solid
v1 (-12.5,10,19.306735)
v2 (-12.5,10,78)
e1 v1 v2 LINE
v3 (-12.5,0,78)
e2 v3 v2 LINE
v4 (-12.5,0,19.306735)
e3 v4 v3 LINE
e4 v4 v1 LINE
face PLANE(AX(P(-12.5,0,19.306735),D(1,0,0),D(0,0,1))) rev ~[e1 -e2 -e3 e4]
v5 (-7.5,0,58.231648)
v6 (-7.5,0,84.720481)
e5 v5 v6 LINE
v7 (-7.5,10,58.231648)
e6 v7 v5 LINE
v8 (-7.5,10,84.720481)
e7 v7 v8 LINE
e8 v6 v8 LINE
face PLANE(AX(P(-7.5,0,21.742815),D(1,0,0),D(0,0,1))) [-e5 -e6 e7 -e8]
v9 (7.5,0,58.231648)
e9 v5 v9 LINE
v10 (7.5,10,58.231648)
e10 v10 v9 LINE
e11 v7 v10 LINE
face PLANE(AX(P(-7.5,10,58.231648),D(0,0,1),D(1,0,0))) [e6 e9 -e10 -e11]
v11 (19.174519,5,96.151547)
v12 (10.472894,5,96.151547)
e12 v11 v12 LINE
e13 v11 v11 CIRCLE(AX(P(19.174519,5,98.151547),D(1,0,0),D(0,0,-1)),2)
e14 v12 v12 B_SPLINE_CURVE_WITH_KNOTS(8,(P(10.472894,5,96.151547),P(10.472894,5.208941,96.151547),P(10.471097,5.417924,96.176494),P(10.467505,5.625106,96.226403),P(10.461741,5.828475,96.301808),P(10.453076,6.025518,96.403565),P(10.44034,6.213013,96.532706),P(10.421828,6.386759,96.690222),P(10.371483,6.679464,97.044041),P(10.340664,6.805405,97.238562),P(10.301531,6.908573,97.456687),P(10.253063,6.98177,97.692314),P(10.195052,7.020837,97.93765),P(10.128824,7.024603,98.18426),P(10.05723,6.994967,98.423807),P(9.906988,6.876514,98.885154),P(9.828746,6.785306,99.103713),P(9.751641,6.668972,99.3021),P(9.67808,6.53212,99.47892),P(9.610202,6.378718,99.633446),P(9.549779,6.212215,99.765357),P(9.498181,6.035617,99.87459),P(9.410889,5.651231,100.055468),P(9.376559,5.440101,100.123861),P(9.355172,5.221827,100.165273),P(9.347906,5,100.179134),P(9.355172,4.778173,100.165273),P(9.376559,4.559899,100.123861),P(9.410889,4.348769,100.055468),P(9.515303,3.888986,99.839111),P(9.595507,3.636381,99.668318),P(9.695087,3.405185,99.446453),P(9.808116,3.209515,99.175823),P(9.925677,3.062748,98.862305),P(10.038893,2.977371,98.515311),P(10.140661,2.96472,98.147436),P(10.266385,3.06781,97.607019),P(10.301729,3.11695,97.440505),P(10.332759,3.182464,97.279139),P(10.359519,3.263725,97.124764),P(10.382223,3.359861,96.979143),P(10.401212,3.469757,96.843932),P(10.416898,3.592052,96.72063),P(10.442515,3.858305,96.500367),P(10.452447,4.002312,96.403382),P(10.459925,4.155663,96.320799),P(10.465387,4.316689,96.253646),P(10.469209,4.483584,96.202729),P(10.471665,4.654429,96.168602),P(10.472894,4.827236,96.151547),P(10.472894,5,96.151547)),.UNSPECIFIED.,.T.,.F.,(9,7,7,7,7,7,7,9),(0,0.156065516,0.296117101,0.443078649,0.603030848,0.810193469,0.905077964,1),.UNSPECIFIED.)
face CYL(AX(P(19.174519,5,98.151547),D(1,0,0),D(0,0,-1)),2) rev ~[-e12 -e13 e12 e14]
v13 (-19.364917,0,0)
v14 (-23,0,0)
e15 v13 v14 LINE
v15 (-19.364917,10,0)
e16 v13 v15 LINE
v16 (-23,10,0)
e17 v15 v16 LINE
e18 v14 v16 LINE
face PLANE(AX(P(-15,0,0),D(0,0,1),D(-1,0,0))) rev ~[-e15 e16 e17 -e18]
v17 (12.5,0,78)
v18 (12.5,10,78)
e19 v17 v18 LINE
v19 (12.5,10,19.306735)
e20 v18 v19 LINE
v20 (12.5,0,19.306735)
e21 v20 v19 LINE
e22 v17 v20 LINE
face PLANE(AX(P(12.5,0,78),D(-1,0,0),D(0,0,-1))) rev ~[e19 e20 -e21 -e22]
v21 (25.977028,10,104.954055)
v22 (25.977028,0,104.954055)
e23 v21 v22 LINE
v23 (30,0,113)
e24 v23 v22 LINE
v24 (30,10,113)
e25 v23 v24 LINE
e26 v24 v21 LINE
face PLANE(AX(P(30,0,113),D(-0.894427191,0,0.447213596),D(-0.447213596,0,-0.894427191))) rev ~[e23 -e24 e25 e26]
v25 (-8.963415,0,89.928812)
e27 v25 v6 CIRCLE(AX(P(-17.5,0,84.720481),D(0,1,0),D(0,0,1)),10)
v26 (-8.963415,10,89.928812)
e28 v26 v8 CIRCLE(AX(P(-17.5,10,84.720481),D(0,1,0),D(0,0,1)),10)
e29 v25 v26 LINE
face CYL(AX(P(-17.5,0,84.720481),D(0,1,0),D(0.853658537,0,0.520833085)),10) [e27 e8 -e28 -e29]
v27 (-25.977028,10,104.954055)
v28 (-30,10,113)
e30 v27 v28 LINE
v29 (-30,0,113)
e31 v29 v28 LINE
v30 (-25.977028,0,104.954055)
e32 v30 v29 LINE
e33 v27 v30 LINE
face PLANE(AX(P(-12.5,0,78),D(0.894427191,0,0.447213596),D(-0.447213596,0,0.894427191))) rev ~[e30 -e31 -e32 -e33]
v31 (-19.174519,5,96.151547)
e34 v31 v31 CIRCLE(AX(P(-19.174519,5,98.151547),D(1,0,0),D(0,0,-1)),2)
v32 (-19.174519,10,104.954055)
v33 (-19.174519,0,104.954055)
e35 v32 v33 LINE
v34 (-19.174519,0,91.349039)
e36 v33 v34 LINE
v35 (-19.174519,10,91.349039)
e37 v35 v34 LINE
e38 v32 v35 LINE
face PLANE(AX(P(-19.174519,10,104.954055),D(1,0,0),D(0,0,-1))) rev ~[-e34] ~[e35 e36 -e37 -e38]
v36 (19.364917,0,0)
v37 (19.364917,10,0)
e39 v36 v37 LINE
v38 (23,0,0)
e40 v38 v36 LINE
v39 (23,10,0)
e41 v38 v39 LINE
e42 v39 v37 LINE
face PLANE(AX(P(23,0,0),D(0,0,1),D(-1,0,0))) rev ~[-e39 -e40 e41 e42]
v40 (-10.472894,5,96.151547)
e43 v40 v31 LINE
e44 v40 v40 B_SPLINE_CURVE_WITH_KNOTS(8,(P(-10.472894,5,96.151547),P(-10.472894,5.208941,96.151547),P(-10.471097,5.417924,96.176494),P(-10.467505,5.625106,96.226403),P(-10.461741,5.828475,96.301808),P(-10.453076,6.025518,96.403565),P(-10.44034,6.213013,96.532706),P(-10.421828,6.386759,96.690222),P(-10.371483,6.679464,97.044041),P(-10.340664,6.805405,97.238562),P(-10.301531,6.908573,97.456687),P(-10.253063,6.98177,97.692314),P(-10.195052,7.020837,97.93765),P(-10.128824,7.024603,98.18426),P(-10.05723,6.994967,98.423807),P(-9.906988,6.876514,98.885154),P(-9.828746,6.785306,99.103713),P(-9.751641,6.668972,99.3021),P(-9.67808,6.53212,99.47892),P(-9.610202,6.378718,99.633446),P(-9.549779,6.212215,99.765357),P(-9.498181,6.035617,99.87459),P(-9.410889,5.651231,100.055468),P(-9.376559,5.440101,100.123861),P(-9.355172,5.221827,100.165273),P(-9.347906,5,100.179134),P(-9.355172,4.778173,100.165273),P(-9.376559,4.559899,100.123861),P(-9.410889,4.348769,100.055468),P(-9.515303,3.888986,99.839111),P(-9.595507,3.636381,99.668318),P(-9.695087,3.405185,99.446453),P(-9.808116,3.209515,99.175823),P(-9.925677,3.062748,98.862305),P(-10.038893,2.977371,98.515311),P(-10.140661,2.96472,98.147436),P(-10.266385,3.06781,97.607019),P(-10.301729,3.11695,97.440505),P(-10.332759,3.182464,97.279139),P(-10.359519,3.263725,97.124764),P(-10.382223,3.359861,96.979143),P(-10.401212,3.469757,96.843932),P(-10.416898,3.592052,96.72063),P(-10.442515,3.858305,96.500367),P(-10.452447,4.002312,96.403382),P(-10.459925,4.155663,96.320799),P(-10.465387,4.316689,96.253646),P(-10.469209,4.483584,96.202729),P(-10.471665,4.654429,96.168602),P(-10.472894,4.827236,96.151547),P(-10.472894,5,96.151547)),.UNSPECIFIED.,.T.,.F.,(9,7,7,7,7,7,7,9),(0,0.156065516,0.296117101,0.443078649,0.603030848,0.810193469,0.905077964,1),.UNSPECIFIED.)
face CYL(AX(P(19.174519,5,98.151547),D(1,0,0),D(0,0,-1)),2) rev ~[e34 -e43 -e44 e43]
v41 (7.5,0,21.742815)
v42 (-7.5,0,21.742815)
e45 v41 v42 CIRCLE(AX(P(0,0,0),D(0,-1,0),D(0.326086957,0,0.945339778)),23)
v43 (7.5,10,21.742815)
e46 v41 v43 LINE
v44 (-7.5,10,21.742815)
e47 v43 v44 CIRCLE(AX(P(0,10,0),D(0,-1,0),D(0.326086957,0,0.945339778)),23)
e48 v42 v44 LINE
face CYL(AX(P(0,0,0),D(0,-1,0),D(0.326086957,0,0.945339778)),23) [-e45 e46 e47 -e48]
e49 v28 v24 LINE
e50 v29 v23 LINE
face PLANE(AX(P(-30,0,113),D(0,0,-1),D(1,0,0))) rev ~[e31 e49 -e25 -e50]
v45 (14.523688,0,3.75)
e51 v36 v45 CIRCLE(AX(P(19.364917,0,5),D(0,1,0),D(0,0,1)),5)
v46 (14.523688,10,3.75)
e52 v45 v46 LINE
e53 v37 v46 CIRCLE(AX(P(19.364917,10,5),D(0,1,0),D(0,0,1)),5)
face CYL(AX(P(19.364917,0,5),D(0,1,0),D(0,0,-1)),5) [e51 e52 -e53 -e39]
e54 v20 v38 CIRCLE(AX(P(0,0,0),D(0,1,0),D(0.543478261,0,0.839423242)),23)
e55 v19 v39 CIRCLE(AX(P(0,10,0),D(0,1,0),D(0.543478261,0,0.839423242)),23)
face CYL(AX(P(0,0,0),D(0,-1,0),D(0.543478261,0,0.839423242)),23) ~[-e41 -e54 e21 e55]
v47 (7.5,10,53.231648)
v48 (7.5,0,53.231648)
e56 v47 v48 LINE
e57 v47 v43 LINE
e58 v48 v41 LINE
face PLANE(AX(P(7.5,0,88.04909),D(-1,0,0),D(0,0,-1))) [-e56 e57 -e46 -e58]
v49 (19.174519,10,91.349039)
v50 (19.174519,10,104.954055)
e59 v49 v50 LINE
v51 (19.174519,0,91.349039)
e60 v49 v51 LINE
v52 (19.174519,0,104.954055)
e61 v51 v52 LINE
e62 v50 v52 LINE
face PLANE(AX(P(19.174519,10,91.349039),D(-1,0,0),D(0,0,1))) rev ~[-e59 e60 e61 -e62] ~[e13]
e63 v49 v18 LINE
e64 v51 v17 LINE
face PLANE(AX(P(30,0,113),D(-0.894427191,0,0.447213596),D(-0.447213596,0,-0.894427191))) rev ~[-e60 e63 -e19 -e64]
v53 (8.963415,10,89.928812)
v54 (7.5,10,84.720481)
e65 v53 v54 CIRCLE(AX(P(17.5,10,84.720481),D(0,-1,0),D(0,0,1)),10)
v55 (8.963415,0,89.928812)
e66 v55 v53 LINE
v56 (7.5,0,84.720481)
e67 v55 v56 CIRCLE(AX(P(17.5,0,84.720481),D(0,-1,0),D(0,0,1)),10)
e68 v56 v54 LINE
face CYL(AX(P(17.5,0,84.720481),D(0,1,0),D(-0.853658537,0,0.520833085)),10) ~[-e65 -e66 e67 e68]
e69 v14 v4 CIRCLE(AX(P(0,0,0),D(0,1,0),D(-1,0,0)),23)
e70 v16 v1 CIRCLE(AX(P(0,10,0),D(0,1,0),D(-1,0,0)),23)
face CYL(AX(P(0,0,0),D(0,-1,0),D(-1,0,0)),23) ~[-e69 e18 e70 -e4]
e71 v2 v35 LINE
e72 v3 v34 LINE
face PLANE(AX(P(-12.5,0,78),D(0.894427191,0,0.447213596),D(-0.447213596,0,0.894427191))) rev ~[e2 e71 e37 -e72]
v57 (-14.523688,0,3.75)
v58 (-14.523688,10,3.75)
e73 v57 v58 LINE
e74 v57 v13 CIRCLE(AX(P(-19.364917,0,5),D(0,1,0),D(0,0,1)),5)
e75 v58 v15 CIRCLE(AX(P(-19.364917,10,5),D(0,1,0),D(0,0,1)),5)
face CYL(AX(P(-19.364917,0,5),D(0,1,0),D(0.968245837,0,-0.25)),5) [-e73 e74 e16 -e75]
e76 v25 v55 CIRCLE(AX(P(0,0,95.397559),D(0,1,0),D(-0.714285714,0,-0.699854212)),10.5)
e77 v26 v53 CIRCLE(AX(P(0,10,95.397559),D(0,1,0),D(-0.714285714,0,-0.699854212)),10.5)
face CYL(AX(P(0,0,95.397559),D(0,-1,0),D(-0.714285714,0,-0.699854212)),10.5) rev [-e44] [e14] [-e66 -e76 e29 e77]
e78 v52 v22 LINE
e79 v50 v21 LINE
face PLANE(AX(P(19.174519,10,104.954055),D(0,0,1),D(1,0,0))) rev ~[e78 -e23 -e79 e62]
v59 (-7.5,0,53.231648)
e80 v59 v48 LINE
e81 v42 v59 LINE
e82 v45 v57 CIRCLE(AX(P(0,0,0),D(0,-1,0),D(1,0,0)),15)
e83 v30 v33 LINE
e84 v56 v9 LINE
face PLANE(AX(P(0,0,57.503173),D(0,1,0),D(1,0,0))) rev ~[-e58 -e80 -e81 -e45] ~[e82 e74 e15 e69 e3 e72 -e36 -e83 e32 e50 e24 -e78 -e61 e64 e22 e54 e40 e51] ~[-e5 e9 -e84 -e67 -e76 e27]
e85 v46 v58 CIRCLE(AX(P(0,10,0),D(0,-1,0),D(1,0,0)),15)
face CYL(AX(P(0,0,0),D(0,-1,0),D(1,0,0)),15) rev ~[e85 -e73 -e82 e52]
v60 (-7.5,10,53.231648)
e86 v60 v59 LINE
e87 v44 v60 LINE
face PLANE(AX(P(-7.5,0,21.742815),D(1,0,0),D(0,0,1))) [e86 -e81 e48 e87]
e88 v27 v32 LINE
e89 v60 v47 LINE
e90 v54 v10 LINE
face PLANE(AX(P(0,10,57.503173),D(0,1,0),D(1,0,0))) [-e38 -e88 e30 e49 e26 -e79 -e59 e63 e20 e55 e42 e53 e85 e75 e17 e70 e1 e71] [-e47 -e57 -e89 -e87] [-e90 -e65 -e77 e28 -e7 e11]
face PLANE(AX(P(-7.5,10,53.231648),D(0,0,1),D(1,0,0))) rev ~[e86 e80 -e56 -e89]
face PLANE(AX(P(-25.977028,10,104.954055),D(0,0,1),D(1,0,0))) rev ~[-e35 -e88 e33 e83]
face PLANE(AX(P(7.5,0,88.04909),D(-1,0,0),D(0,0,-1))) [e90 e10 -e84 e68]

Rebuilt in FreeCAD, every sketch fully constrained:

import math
import FreeCAD as App
import Part
import Sketcher
Q = App.Units.Quantity


def edges_at(feature, points):
    """Names of the edges that pass closest to the given points."""
    edges = feature.Shape.Edges
    near = lambda p: min(range(len(edges)), key=lambda i: edges[i].distToShape(Part.Vertex(*p))[0])
    return sorted({f"Edge{near(p) + 1}" for p in points})

doc = App.newDocument("Part")
body = doc.addObject("PartDesign::Body", "Body")

# Sketch on XZ plane
sketch1 = body.newObject("Sketcher::SketchObject", "Sketch")
sketch1.AttachmentSupport = (doc.getObject("XZ_Plane"), [""])
sketch1.MapMode = "FlatFace"
sketch1.addGeometry(Part.ArcOfCircle(Part.Circle(App.Vector(0, 0, 0), App.Vector(0, 0, 1), 23), math.radians(0), math.radians(57)), False)
sketch1.addGeometry(Part.LineSegment(App.Vector(23, 0, 0), App.Vector(15, 0, 0)), False)
sketch1.addGeometry(Part.ArcOfCircle(Part.Circle(App.Vector(0, 0, 0), App.Vector(0, 0, 1), 15), math.radians(0), math.radians(180)), False)
sketch1.addGeometry(Part.LineSegment(App.Vector(-15, 0, 0), App.Vector(-23, 0, 0)), False)
sketch1.addGeometry(Part.ArcOfCircle(Part.Circle(App.Vector(0, 0, 0), App.Vector(0, 0, 1), 23), math.radians(123), math.radians(180)), False)
sketch1.addGeometry(Part.LineSegment(App.Vector(-12, 19, 0), App.Vector(-12, 78, 0)), False)
sketch1.addGeometry(Part.LineSegment(App.Vector(-12, 78, 0), App.Vector(-30, 113, 0)), False)
sketch1.addGeometry(Part.LineSegment(App.Vector(-30, 113, 0), App.Vector(30, 113, 0)), False)
sketch1.addGeometry(Part.LineSegment(App.Vector(30, 113, 0), App.Vector(12, 78, 0)), False)
sketch1.addGeometry(Part.LineSegment(App.Vector(12, 78, 0), App.Vector(12, 19, 0)), False)
sketch1.addGeometry(Part.ArcOfCircle(Part.Circle(App.Vector(0, 95, 0), App.Vector(0, 0, 1), 10), math.radians(-44), math.radians(224)), False)
sketch1.addGeometry(Part.LineSegment(App.Vector(-8, 88, 0), App.Vector(-8, 22, 0)), False)
sketch1.addGeometry(Part.ArcOfCircle(Part.Circle(App.Vector(0, 0, 0), App.Vector(0, 0, 1), 23), math.radians(71), math.radians(109)), False)
sketch1.addGeometry(Part.LineSegment(App.Vector(8, 22, 0), App.Vector(8, 88, 0)), False)
sketch1.addConstraint(Sketcher.Constraint("Coincident", 0, 1, 1, 1))
sketch1.addConstraint(Sketcher.Constraint("Coincident", 1, 2, 2, 1))
sketch1.addConstraint(Sketcher.Constraint("Coincident", 2, 2, 3, 1))
sketch1.addConstraint(Sketcher.Constraint("Coincident", 3, 2, 4, 2))
sketch1.addConstraint(Sketcher.Constraint("Coincident", 4, 1, 5, 1))
sketch1.addConstraint(Sketcher.Constraint("Coincident", 5, 2, 6, 1))
sketch1.addConstraint(Sketcher.Constraint("Coincident", 6, 2, 7, 1))
sketch1.addConstraint(Sketcher.Constraint("Coincident", 7, 2, 8, 1))
sketch1.addConstraint(Sketcher.Constraint("Coincident", 8, 2, 9, 1))
sketch1.addConstraint(Sketcher.Constraint("Coincident", 9, 2, 0, 2))
sketch1.addConstraint(Sketcher.Constraint("Coincident", 10, 2, 11, 1))
sketch1.addConstraint(Sketcher.Constraint("Coincident", 11, 2, 12, 2))
sketch1.addConstraint(Sketcher.Constraint("Coincident", 12, 1, 13, 1))
sketch1.addConstraint(Sketcher.Constraint("Coincident", 13, 2, 10, 1))
sketch1.addConstraint(Sketcher.Constraint("Horizontal", 1))
sketch1.addConstraint(Sketcher.Constraint("Horizontal", 3))
sketch1.addConstraint(Sketcher.Constraint("Vertical", 5))
sketch1.addConstraint(Sketcher.Constraint("Horizontal", 7))
sketch1.addConstraint(Sketcher.Constraint("Vertical", 9))
sketch1.addConstraint(Sketcher.Constraint("Vertical", 11))
sketch1.addConstraint(Sketcher.Constraint("Vertical", 13))
sketch1.addConstraint(Sketcher.Constraint("Coincident", 0, 3, -1, 1))
sketch1.addConstraint(Sketcher.Constraint("Coincident", 2, 3, -1, 1))
sketch1.addConstraint(Sketcher.Constraint("Coincident", 4, 3, -1, 1))
sketch1.addConstraint(Sketcher.Constraint("Coincident", 12, 3, -1, 1))
sketch1.addConstraint(Sketcher.Constraint("Equal", 0, 4))
sketch1.addConstraint(Sketcher.Constraint("Equal", 4, 12))
sketch1.addConstraint(Sketcher.Constraint("Symmetric", 5, 2, 8, 2, -2))
sketch1.addConstraint(Sketcher.Constraint("Symmetric", 10, 2, 13, 2, -2))
sketch1.addConstraint(Sketcher.Constraint("PointOnObject", 0, 1, -1))
sketch1.addConstraint(Sketcher.Constraint("PointOnObject", 2, 2, -1))
sketch1.addConstraint(Sketcher.Constraint("Equal", 6, 8))
sketch1.addConstraint(Sketcher.Constraint("Radius", 0, Q("23 mm")))
sketch1.addConstraint(Sketcher.Constraint("Radius", 2, Q("15 mm")))
sketch1.addConstraint(Sketcher.Constraint("Radius", 10, Q("10.5 mm")))
sketch1.addConstraint(Sketcher.Constraint("DistanceX", 7, 1, 7, 2, Q("60 mm")))
sketch1.addConstraint(Sketcher.Constraint("DistanceY", -1, 1, 5, 2, Q("78 mm")))
sketch1.addConstraint(Sketcher.Constraint("DistanceY", -1, 1, 6, 2, Q("113 mm")))
sketch1.addConstraint(Sketcher.Constraint("DistanceX", 5, 2, 8, 2, Q("25 mm")))
sketch1.addConstraint(Sketcher.Constraint("DistanceX", 5, 2, 10, 2, Q("5 mm")))
sketch1.addConstraint(Sketcher.Constraint("DistanceY", 11, 2, 11, 1, Q("66.306275 mm")))
pad1 = body.newObject("PartDesign::Pad", "Pad")
pad1.Profile = sketch1
pad1.Length = 10
pad1.Reversed = True
doc.recompute()

fillet = body.newObject("PartDesign::Fillet", "Fillet")
fillet.Base = (pad1, edges_at(pad1, [(7.5, 5, 88.049), (-7.5, 5, 88.049)]))
fillet.Radius = 10
doc.recompute()

fillet2 = body.newObject("PartDesign::Fillet", "Fillet001")
fillet2.Base = (fillet, edges_at(fillet, [(-15, 5, 0), (15, 5, 0)]))
fillet2.Radius = 5

# Sketch on XZ plane
sketch2 = body.newObject("Sketcher::SketchObject", "Sketch001")
sketch2.AttachmentSupport = (doc.getObject("XZ_Plane"), [""])
sketch2.MapMode = "FlatFace"
sketch2.AttachmentOffset = App.Placement(App.Vector(0, 0, -10), App.Rotation())
sketch2.addGeometry(Part.LineSegment(App.Vector(26, 105, 0), App.Vector(19, 91, 0)), False)
sketch2.addGeometry(Part.LineSegment(App.Vector(19, 91, 0), App.Vector(19, 105, 0)), False)
sketch2.addGeometry(Part.LineSegment(App.Vector(19, 105, 0), App.Vector(26, 105, 0)), False)
sketch2.addGeometry(Part.LineSegment(App.Vector(-19, 105, 0), App.Vector(-19, 91, 0)), False)
sketch2.addGeometry(Part.LineSegment(App.Vector(-19, 91, 0), App.Vector(-26, 105, 0)), False)
sketch2.addGeometry(Part.LineSegment(App.Vector(-26, 105, 0), App.Vector(-19, 105, 0)), False)
sketch2.addConstraint(Sketcher.Constraint("Coincident", 0, 2, 1, 1))
sketch2.addConstraint(Sketcher.Constraint("Coincident", 1, 2, 2, 1))
sketch2.addConstraint(Sketcher.Constraint("Coincident", 2, 2, 0, 1))
sketch2.addConstraint(Sketcher.Constraint("Coincident", 3, 2, 4, 1))
sketch2.addConstraint(Sketcher.Constraint("Coincident", 4, 2, 5, 1))
sketch2.addConstraint(Sketcher.Constraint("Coincident", 5, 2, 3, 1))
sketch2.addConstraint(Sketcher.Constraint("Vertical", 1))
sketch2.addConstraint(Sketcher.Constraint("Horizontal", 2))
sketch2.addConstraint(Sketcher.Constraint("Vertical", 3))
sketch2.addConstraint(Sketcher.Constraint("Horizontal", 5))
sketch2.addConstraint(Sketcher.Constraint("Symmetric", 0, 2, 3, 2, -2))
sketch2.addConstraint(Sketcher.Constraint("Symmetric", 2, 2, 4, 2, -2))
sketch2.addConstraint(Sketcher.Constraint("DistanceX", 2, 1, 2, 2, Q("6.802508 mm")))
sketch2.addConstraint(Sketcher.Constraint("Distance", 0, Q("15.210871 mm")))
sketch2.addConstraint(Sketcher.Constraint("DistanceX", -1, 1, 0, 2, Q("19.174519 mm")))
sketch2.addConstraint(Sketcher.Constraint("DistanceY", -1, 1, 0, 2, Q("91.349039 mm")))
pocket1 = body.newObject("PartDesign::Pocket", "Pocket")
pocket1.Profile = sketch2
pocket1.Length = 10
pocket1.Reversed = True

# Sketch on YZ plane
sketch3 = body.newObject("Sketcher::SketchObject", "Sketch002")
sketch3.AttachmentSupport = (doc.getObject("YZ_Plane"), [""])
sketch3.MapMode = "FlatFace"
sketch3.AttachmentOffset = App.Placement(App.Vector(0, 0, 19.174519), App.Rotation())
sketch3.addGeometry(Part.Circle(App.Vector(5, 98.2, 0), App.Vector(0, 0, 1), 2), False)
sketch3.addConstraint(Sketcher.Constraint("Diameter", 0, Q("4 mm")))
sketch3.addConstraint(Sketcher.Constraint("DistanceX", -1, 1, 0, 3, Q("5 mm")))
sketch3.addConstraint(Sketcher.Constraint("DistanceY", -1, 1, 0, 3, Q("98.151547 mm")))
pocket2 = body.newObject("PartDesign::Pocket", "Pocket001")
pocket2.Profile = sketch3
pocket2.Length = 43

# Sketch on XZ plane
sketch4 = body.newObject("Sketcher::SketchObject", "Sketch003")
sketch4.AttachmentSupport = (doc.getObject("XZ_Plane"), [""])
sketch4.MapMode = "FlatFace"
sketch4.AttachmentOffset = App.Placement(App.Vector(0, 0, -10), App.Rotation())
sketch4.addGeometry(Part.LineSegment(App.Vector(-8, 53, 0), App.Vector(-8, 58, 0)), False)
sketch4.addGeometry(Part.LineSegment(App.Vector(-8, 58, 0), App.Vector(8, 58, 0)), False)
sketch4.addGeometry(Part.LineSegment(App.Vector(8, 58, 0), App.Vector(8, 53, 0)), False)
sketch4.addGeometry(Part.LineSegment(App.Vector(8, 53, 0), App.Vector(-8, 53, 0)), False)
sketch4.addConstraint(Sketcher.Constraint("Coincident", 0, 2, 1, 1))
sketch4.addConstraint(Sketcher.Constraint("Coincident", 1, 2, 2, 1))
sketch4.addConstraint(Sketcher.Constraint("Coincident", 2, 2, 3, 1))
sketch4.addConstraint(Sketcher.Constraint("Coincident", 3, 2, 0, 1))
sketch4.addConstraint(Sketcher.Constraint("Vertical", 0))
sketch4.addConstraint(Sketcher.Constraint("Horizontal", 1))
sketch4.addConstraint(Sketcher.Constraint("Vertical", 2))
sketch4.addConstraint(Sketcher.Constraint("Horizontal", 3))
sketch4.addConstraint(Sketcher.Constraint("DistanceX", 1, 1, 1, 2, Q("15 mm")))
sketch4.addConstraint(Sketcher.Constraint("DistanceY", 0, 1, 0, 2, Q("5 mm")))
sketch4.addConstraint(Sketcher.Constraint("DistanceX", 0, 2, -1, 1, Q("7.5 mm")))
sketch4.addConstraint(Sketcher.Constraint("DistanceY", -1, 1, 0, 2, Q("58.231648 mm")))
pad2 = body.newObject("PartDesign::Pad", "Pad001")
pad2.Profile = sketch4
pad2.Length = 10

doc.recompute()
